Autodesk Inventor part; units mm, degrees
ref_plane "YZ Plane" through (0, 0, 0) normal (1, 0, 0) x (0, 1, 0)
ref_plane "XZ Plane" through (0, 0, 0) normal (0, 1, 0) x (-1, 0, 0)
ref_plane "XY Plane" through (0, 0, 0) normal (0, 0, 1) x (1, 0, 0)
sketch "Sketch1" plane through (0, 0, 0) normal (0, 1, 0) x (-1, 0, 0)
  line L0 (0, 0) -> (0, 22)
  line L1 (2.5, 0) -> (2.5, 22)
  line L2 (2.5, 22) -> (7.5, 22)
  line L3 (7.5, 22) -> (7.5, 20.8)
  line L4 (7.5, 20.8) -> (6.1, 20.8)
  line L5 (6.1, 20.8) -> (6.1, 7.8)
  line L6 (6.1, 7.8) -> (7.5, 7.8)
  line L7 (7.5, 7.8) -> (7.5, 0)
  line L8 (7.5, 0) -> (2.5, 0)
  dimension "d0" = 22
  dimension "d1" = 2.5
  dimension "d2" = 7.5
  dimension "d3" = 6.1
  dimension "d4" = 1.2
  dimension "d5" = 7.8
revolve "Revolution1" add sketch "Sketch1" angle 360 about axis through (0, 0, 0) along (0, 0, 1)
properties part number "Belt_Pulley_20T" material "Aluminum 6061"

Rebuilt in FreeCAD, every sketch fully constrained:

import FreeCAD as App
import Part
import Sketcher

V = App.Vector
Q = App.Units.Quantity

doc = App.newDocument("Part")
params = doc.addObject("Spreadsheet::Sheet", "Params")
for row, (alias, value) in enumerate([
    ("sketch1_height", "22 mm"),
    ("sketch1_height2", "7.8 mm"),
    ("sketch1_height3", "1.2 mm"),
    ("revolution_angle", "360 deg"),
], start=1):
    params.set(f"A{row}", alias)
    params.set(f"B{row}", "=" + value)
    params.setAlias(f"B{row}", alias)

body = doc.addObject("PartDesign::Body", "Body")

sketch1 = body.newObject("Sketcher::SketchObject", "Sketch")
sketch1.AttachmentSupport = (doc.getObject("XZ_Plane"), [""])
sketch1.MapMode = "FlatFace"
sketch1.addGeometry([
    Part.LineSegment(V(-2.5, 22, 0), V(-2.5, 0, 0)),
    Part.LineSegment(V(-2.5, 0, 0), V(-7.5, 0, 0)),
    Part.LineSegment(V(-7.5, 0, 0), V(-7.5, 7.8, 0)),
    Part.LineSegment(V(-7.5, 7.8, 0), V(-6.1, 7.8, 0)),
    Part.LineSegment(V(-6.1, 7.8, 0), V(-6.1, 20.8, 0)),
    Part.LineSegment(V(-6.1, 20.8, 0), V(-7.5, 20.8, 0)),
    Part.LineSegment(V(-7.5, 20.8, 0), V(-7.5, 22, 0)),
    Part.LineSegment(V(-7.5, 22, 0), V(-2.5, 22, 0)),
], False)
sketch1.addConstraint([
    Sketcher.Constraint("Coincident", 0, 2, 1, 1),
    Sketcher.Constraint("Coincident", 1, 2, 2, 1),
    Sketcher.Constraint("Coincident", 2, 2, 3, 1),
    Sketcher.Constraint("Coincident", 3, 2, 4, 1),
    Sketcher.Constraint("Coincident", 4, 2, 5, 1),
    Sketcher.Constraint("Coincident", 5, 2, 6, 1),
    Sketcher.Constraint("Coincident", 6, 2, 7, 1),
    Sketcher.Constraint("Coincident", 7, 2, 0, 1),
    Sketcher.Constraint("Vertical", 0),
    Sketcher.Constraint("Horizontal", 1),
    Sketcher.Constraint("Vertical", 2),
    Sketcher.Constraint("Horizontal", 3),
    Sketcher.Constraint("Vertical", 4),
    Sketcher.Constraint("Horizontal", 5),
    Sketcher.Constraint("Vertical", 6),
    Sketcher.Constraint("Horizontal", 7),
    Sketcher.Constraint("PointOnObject", 0, 2, -1),
    Sketcher.Constraint("Vertical", 2, 2, 5, 2),
    Sketcher.Constraint("DistanceY", 0, 2, 0, 1, Q("22 mm")),
    Sketcher.Constraint("DistanceY", 2, 1, 2, 2, Q("7.8 mm")),
    Sketcher.Constraint("DistanceY", 6, 1, 6, 2, Q("1.2 mm")),
    Sketcher.Constraint("DistanceX", 0, 2, -1, 1, Q("2.5 mm")),
    Sketcher.Constraint("DistanceX", 1, 2, -1, 1, Q("7.5 mm")),
    Sketcher.Constraint("DistanceX", 3, 2, -1, 1, Q("6.1 mm")),
])
sketch1.setExpression("Constraints[18]", "Params.sketch1_height")
sketch1.setExpression("Constraints[19]", "Params.sketch1_height2")
sketch1.setExpression("Constraints[20]", "Params.sketch1_height3")
revolution = body.newObject("PartDesign::Revolution", "Revolution")
revolution.Profile = sketch1
revolution.ReferenceAxis = (sketch1, ["V_Axis"])
revolution.setExpression("Angle", "Params.revolution_angle")

doc.recompute()
